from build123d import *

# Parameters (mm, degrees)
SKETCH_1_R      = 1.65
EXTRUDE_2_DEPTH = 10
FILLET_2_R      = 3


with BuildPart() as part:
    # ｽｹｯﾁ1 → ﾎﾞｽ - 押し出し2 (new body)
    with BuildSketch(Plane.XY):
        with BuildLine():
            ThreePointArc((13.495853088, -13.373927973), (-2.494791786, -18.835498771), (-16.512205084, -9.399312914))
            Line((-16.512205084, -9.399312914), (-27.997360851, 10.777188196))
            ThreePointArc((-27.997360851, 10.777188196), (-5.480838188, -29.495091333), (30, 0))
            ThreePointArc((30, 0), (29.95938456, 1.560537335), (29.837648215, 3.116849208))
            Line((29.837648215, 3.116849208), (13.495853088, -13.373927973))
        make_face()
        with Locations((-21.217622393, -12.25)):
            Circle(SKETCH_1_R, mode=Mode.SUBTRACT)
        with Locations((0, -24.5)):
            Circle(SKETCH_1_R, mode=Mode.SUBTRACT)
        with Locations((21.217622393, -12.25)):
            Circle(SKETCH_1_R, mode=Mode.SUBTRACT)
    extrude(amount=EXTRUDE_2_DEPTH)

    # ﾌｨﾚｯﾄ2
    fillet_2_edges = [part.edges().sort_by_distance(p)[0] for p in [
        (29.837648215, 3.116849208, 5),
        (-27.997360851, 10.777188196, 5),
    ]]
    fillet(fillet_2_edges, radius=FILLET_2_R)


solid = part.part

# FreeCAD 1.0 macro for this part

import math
import FreeCAD as App
import Part
import Sketcher

V = App.Vector
Q = App.Units.Quantity


def edges_at(feature, points):
    """Names of the edges that pass closest to the given points."""
    edges = feature.Shape.Edges
    near = lambda p: min(range(len(edges)), key=lambda i: edges[i].distToShape(Part.Vertex(*p))[0])
    return sorted({f"Edge{near(p) + 1}" for p in points})

doc = App.newDocument("Part")
body = doc.addObject("PartDesign::Body", "Body")

sketch1 = body.newObject("Sketcher::SketchObject", "Sketch")
sketch1.AttachmentSupport = (doc.getObject("XY_Plane"), [""])
sketch1.MapMode = "FlatFace"
sketch1.addGeometry(Part.ArcOfCircle(Part.Circle(V(0, 0, 0), V(0, 0, 1), 19), math.radians(-150), math.radians(-45)), False)
sketch1.addGeometry(Part.LineSegment(V(-16.5, -9.4, 0), V(-28, 10.8, 0)), False)
sketch1.addGeometry(Part.ArcOfCircle(Part.Circle(V(0, 0, 0), V(0, 0, 1), 30), math.radians(159), math.radians(360)), False)
sketch1.addGeometry(Part.ArcOfCircle(Part.Circle(V(0, 0, 0), V(0, 0, 1), 30), math.radians(0), math.radians(5.96)), False)
sketch1.addGeometry(Part.LineSegment(V(29.8, 3.1, 0), V(13.5, -13.4, 0)), False)
sketch1.addGeometry(Part.Circle(V(0, -24.5, 0), V(0, 0, 1), 1.6), False)
sketch1.addGeometry(Part.Circle(V(-21.2, -12.2, 0), V(0, 0, 1), 1.6), False)
sketch1.addGeometry(Part.Circle(V(21.2, -12.2, 0), V(0, 0, 1), 1.6), False)
sketch1.addConstraint(Sketcher.Constraint("Tangent", 0, 1, 1, 1))
sketch1.addConstraint(Sketcher.Constraint("Coincident", 1, 2, 2, 1))
sketch1.addConstraint(Sketcher.Constraint("Tangent", 2, 2, 3, 1))
sketch1.addConstraint(Sketcher.Constraint("Coincident", 3, 2, 4, 1))
sketch1.addConstraint(Sketcher.Constraint("Tangent", 4, 2, 0, 2))
sketch1.addConstraint(Sketcher.Constraint("Coincident", 0, 3, -1, 1))
sketch1.addConstraint(Sketcher.Constraint("Coincident", 2, 3, -1, 1))
sketch1.addConstraint(Sketcher.Constraint("Equal", 2, 3))
sketch1.addConstraint(Sketcher.Constraint("Equal", 5, 6))
sketch1.addConstraint(Sketcher.Constraint("Equal", 6, 7))
sketch1.addConstraint(Sketcher.Constraint("Symmetric", 6, 3, 7, 3, -2))
sketch1.addConstraint(Sketcher.Constraint("PointOnObject", 5, 3, -2))
sketch1.addConstraint(Sketcher.Constraint("PointOnObject", 2, 2, -1))
sketch1.addConstraint(Sketcher.Constraint("Radius", 0, Q("19 mm")))
sketch1.addConstraint(Sketcher.Constraint("Radius", 2, Q("30 mm")))
sketch1.addConstraint(Sketcher.Constraint("Diameter", 5, Q("3.3 mm")))
sketch1.addConstraint(Sketcher.Constraint("DistanceY", 5, 3, -1, 1, Q("24.5 mm")))
sketch1.addConstraint(Sketcher.Constraint("Angle", 1, Q("119.650015 deg")))
sketch1.addConstraint(Sketcher.Constraint("Angle", 4, Q("-134.740015 deg")))
sketch1.addConstraint(Sketcher.Constraint("DistanceY", 6, 3, -1, 1, Q("12.25 mm")))
sketch1.addConstraint(Sketcher.Constraint("DistanceX", 1, 2, 6, 3, Q("6.779738 mm")))
pad1 = body.newObject("PartDesign::Pad", "Pad")
pad1.Profile = sketch1
pad1.Length = 10
doc.recompute()

fillet = body.newObject("PartDesign::Fillet", "Fillet")
fillet.Base = (pad1, edges_at(pad1, [(29.838, 3.117, 5), (-27.997, 10.777, 5)]))
fillet.Radius = 3

doc.recompute()
